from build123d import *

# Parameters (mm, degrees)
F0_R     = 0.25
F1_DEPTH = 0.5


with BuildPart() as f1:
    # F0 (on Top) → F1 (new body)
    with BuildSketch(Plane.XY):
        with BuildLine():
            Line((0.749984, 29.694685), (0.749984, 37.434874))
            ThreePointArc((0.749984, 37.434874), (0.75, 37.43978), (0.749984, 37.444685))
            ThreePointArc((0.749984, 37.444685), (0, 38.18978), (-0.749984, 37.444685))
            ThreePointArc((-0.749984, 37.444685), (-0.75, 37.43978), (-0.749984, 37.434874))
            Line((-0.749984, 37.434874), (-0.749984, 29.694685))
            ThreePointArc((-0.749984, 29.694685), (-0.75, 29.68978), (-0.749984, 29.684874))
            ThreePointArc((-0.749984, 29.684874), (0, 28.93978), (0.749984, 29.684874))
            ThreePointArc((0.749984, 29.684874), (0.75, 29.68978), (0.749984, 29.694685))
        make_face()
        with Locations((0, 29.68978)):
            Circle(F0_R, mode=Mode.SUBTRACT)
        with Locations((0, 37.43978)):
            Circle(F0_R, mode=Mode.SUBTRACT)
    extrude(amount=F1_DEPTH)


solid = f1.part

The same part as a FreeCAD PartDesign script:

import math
import FreeCAD as App
import Part
import Sketcher
from FreeCAD import Vector
Q = App.Units.Quantity

doc = App.newDocument("Part")
body = doc.addObject("PartDesign::Body", "Body")

# Sketch on XY plane
sketch1 = body.newObject("Sketcher::SketchObject", "Sketch")
sketch1.AttachmentSupport = (doc.getObject("XY_Plane"), [""])
sketch1.MapMode = "FlatFace"
sketch1.addGeometry(Part.LineSegment(Vector(0.75, 29.695, 0), Vector(0.75, 37.435, 0)), False)
sketch1.addGeometry(Part.ArcOfCircle(Part.Circle(Vector(-0.002, 37.44, 0), Vector(0, 0, 1), 0.752), math.radians(-0.37), math.radians(0.37)), False)
sketch1.addGeometry(Part.ArcOfCircle(Part.Circle(Vector(0, 37.44, 0), Vector(0, 0, 1), 0.75), math.radians(0), math.radians(180)), False)
sketch1.addGeometry(Part.ArcOfCircle(Part.Circle(Vector(0.002, 37.44, 0), Vector(0, 0, 1), 0.752), math.radians(179.63), math.radians(180.37)), False)
sketch1.addGeometry(Part.LineSegment(Vector(-0.75, 37.435, 0), Vector(-0.75, 29.695, 0)), False)
sketch1.addGeometry(Part.ArcOfCircle(Part.Circle(Vector(0.002, 29.69, 0), Vector(0, 0, 1), 0.752), math.radians(179.63), math.radians(180.37)), False)
sketch1.addGeometry(Part.ArcOfCircle(Part.Circle(Vector(0, 29.69, 0), Vector(0, 0, 1), 0.75), math.radians(-180), math.radians(0)), False)
sketch1.addGeometry(Part.ArcOfCircle(Part.Circle(Vector(-0.002, 29.69, 0), Vector(0, 0, 1), 0.752), math.radians(-0.37), math.radians(0.37)), False)
sketch1.addGeometry(Part.Circle(Vector(0, 29.69, 0), Vector(0, 0, 1), 0.25), False)
sketch1.addGeometry(Part.Circle(Vector(0, 37.44, 0), Vector(0, 0, 1), 0.25), False)
sketch1.addConstraint(Sketcher.Constraint("Coincident", 0, 2, 1, 1))
sketch1.addConstraint(Sketcher.Constraint("Coincident", 1, 2, 2, 1))
sketch1.addConstraint(Sketcher.Constraint("Coincident", 2, 2, 3, 1))
sketch1.addConstraint(Sketcher.Constraint("Coincident", 3, 2, 4, 1))
sketch1.addConstraint(Sketcher.Constraint("Coincident", 4, 2, 5, 1))
sketch1.addConstraint(Sketcher.Constraint("Coincident", 5, 2, 6, 1))
sketch1.addConstraint(Sketcher.Constraint("Coincident", 6, 2, 7, 1))
sketch1.addConstraint(Sketcher.Constraint("Coincident", 7, 2, 0, 1))
sketch1.addConstraint(Sketcher.Constraint("Vertical", 0))
sketch1.addConstraint(Sketcher.Constraint("Vertical", 4))
sketch1.addConstraint(Sketcher.Constraint("Coincident", 8, 3, 6, 3))
sketch1.addConstraint(Sketcher.Constraint("Coincident", 9, 3, 2, 3))
sketch1.addConstraint(Sketcher.Constraint("Equal", 1, 3))
sketch1.addConstraint(Sketcher.Constraint("Equal", 3, 5))
sketch1.addConstraint(Sketcher.Constraint("Equal", 2, 6))
sketch1.addConstraint(Sketcher.Constraint("Equal", 5, 7))
sketch1.addConstraint(Sketcher.Constraint("Equal", 8, 9))
sketch1.addConstraint(Sketcher.Constraint("Symmetric", 1, 3, 3, 3, -2))
sketch1.addConstraint(Sketcher.Constraint("Symmetric", 5, 3, 7, 3, -2))
sketch1.addConstraint(Sketcher.Constraint("Horizontal", 1, 3, 2, 3))
sketch1.addConstraint(Sketcher.Constraint("Horizontal", 5, 3, 6, 3))
sketch1.addConstraint(Sketcher.Constraint("Horizontal", 1, 2, 2, 2))
sketch1.addConstraint(Sketcher.Constraint("Horizontal", 0, 2, 3, 2))
sketch1.addConstraint(Sketcher.Constraint("Horizontal", 5, 2, 6, 2))
sketch1.addConstraint(Sketcher.Constraint("Diameter", 8, Q("0.5 mm")))
sketch1.addConstraint(Sketcher.Constraint("Radius", 2, Q("0.75 mm")))
sketch1.addConstraint(Sketcher.Constraint("DistanceY", 5, 3, 3, 3, Q("7.75 mm")))
sketch1.addConstraint(Sketcher.Constraint("Radius", 1, Q("0.752006 mm")))
sketch1.addConstraint(Sketcher.Constraint("DistanceY", 0, 1, 0, 2, Q("7.740189 mm")))
sketch1.addConstraint(Sketcher.Constraint("DistanceY", -1, 1, 1, 3, Q("37.43978 mm")))
sketch1.addConstraint(Sketcher.Constraint("DistanceY", 0, 2, 1, 2, Q("0.009811 mm")))
sketch1.addConstraint(Sketcher.Constraint("DistanceY", 5, 2, 4, 2, Q("0.009811 mm")))
pad1 = body.newObject("PartDesign::Pad", "Pad")
pad1.Profile = sketch1
pad1.Length = 0.5

doc.recompute()
